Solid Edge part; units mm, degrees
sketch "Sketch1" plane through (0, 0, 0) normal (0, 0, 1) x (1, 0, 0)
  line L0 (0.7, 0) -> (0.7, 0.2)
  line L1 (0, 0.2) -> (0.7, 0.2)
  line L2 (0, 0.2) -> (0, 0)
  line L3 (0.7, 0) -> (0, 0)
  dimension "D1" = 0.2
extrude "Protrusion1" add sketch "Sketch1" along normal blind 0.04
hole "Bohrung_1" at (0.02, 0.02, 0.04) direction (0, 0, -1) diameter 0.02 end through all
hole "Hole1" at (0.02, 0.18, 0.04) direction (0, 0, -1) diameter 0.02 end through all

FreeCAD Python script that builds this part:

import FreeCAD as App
import Part
import Sketcher
from FreeCAD import Vector
Q = App.Units.Quantity

doc = App.newDocument("Part")
body = doc.addObject("PartDesign::Body", "Body")

sketch1 = doc.addObject("Sketcher::SketchObject", "Sketch")
body.addObject(sketch1)
sketch1.AttachmentSupport = (doc.XY_Plane, [""])
sketch1.MapMode = "FlatFace"
sketch1.addGeometry([
    Part.LineSegment(Vector(0, 0, 0), Vector(0.7, 0, 0)),
    Part.LineSegment(Vector(0.7, 0, 0), Vector(0.7, 0.2, 0)),
    Part.LineSegment(Vector(0.7, 0.2, 0), Vector(0, 0.2, 0)),
    Part.LineSegment(Vector(0, 0.2, 0), Vector(0, 0, 0)),
], False)
sketch1.addConstraint([
    Sketcher.Constraint("Coincident", 0, 2, 1, 1),
    Sketcher.Constraint("Coincident", 1, 2, 2, 1),
    Sketcher.Constraint("Coincident", 2, 2, 3, 1),
    Sketcher.Constraint("Coincident", 3, 2, 0, 1),
    Sketcher.Constraint("Horizontal", 0),
    Sketcher.Constraint("Vertical", 1),
    Sketcher.Constraint("Horizontal", 2),
    Sketcher.Constraint("Vertical", 3),
    Sketcher.Constraint("Coincident", 3, 2, -1, 1),
    Sketcher.Constraint("DistanceX", 0, 1, 0, 2, Q("0.7 mm")),
    Sketcher.Constraint("DistanceY", 1, 1, 1, 2, Q("0.2 mm")),
])
pad1 = doc.addObject("PartDesign::Pad", "Pad")
body.addObject(pad1)
pad1.Profile = sketch1
pad1.Length = 0.04

sketch2 = doc.addObject("Sketcher::SketchObject", "Sketch001")
body.addObject(sketch2)
sketch2.AttachmentSupport = (doc.XY_Plane, [""])
sketch2.MapMode = "FlatFace"
sketch2.AttachmentOffset = App.Placement(Vector(0, 0, 0.04), App.Rotation())
sketch2.addGeometry(Part.Circle(Vector(0.02, 0.02, 0), Vector(0, 0, 1), 0.01), False)
sketch2.addConstraint([
    Sketcher.Constraint("Diameter", 0, Q("0.02 mm")),
    Sketcher.Constraint("DistanceX", -1, 1, 0, 3, Q("0.02 mm")),
    Sketcher.Constraint("DistanceY", -1, 1, 0, 3, Q("0.02 mm")),
])
doc.recompute()
hole = doc.addObject("PartDesign::Hole", "Hole")
body.addObject(hole)
hole.Profile = sketch2
hole.ThreadType = "None"
hole.Diameter = 0.02
hole.DepthType = "ThroughAll"

sketch3 = doc.addObject("Sketcher::SketchObject", "Sketch002")
body.addObject(sketch3)
sketch3.AttachmentSupport = (doc.XY_Plane, [""])
sketch3.MapMode = "FlatFace"
sketch3.AttachmentOffset = App.Placement(Vector(0, 0, 0.04), App.Rotation())
sketch3.addGeometry(Part.Circle(Vector(0.02, 0.18, 0), Vector(0, 0, 1), 0.01), False)
sketch3.addConstraint([
    Sketcher.Constraint("Diameter", 0, Q("0.02 mm")),
    Sketcher.Constraint("DistanceX", -1, 1, 0, 3, Q("0.02 mm")),
    Sketcher.Constraint("DistanceY", -1, 1, 0, 3, Q("0.18 mm")),
])
doc.recompute()
hole2 = doc.addObject("PartDesign::Hole", "Hole001")
body.addObject(hole2)
hole2.Profile = sketch3
hole2.ThreadType = "None"
hole2.Diameter = 0.02
hole2.DepthType = "ThroughAll"

doc.recompute()
